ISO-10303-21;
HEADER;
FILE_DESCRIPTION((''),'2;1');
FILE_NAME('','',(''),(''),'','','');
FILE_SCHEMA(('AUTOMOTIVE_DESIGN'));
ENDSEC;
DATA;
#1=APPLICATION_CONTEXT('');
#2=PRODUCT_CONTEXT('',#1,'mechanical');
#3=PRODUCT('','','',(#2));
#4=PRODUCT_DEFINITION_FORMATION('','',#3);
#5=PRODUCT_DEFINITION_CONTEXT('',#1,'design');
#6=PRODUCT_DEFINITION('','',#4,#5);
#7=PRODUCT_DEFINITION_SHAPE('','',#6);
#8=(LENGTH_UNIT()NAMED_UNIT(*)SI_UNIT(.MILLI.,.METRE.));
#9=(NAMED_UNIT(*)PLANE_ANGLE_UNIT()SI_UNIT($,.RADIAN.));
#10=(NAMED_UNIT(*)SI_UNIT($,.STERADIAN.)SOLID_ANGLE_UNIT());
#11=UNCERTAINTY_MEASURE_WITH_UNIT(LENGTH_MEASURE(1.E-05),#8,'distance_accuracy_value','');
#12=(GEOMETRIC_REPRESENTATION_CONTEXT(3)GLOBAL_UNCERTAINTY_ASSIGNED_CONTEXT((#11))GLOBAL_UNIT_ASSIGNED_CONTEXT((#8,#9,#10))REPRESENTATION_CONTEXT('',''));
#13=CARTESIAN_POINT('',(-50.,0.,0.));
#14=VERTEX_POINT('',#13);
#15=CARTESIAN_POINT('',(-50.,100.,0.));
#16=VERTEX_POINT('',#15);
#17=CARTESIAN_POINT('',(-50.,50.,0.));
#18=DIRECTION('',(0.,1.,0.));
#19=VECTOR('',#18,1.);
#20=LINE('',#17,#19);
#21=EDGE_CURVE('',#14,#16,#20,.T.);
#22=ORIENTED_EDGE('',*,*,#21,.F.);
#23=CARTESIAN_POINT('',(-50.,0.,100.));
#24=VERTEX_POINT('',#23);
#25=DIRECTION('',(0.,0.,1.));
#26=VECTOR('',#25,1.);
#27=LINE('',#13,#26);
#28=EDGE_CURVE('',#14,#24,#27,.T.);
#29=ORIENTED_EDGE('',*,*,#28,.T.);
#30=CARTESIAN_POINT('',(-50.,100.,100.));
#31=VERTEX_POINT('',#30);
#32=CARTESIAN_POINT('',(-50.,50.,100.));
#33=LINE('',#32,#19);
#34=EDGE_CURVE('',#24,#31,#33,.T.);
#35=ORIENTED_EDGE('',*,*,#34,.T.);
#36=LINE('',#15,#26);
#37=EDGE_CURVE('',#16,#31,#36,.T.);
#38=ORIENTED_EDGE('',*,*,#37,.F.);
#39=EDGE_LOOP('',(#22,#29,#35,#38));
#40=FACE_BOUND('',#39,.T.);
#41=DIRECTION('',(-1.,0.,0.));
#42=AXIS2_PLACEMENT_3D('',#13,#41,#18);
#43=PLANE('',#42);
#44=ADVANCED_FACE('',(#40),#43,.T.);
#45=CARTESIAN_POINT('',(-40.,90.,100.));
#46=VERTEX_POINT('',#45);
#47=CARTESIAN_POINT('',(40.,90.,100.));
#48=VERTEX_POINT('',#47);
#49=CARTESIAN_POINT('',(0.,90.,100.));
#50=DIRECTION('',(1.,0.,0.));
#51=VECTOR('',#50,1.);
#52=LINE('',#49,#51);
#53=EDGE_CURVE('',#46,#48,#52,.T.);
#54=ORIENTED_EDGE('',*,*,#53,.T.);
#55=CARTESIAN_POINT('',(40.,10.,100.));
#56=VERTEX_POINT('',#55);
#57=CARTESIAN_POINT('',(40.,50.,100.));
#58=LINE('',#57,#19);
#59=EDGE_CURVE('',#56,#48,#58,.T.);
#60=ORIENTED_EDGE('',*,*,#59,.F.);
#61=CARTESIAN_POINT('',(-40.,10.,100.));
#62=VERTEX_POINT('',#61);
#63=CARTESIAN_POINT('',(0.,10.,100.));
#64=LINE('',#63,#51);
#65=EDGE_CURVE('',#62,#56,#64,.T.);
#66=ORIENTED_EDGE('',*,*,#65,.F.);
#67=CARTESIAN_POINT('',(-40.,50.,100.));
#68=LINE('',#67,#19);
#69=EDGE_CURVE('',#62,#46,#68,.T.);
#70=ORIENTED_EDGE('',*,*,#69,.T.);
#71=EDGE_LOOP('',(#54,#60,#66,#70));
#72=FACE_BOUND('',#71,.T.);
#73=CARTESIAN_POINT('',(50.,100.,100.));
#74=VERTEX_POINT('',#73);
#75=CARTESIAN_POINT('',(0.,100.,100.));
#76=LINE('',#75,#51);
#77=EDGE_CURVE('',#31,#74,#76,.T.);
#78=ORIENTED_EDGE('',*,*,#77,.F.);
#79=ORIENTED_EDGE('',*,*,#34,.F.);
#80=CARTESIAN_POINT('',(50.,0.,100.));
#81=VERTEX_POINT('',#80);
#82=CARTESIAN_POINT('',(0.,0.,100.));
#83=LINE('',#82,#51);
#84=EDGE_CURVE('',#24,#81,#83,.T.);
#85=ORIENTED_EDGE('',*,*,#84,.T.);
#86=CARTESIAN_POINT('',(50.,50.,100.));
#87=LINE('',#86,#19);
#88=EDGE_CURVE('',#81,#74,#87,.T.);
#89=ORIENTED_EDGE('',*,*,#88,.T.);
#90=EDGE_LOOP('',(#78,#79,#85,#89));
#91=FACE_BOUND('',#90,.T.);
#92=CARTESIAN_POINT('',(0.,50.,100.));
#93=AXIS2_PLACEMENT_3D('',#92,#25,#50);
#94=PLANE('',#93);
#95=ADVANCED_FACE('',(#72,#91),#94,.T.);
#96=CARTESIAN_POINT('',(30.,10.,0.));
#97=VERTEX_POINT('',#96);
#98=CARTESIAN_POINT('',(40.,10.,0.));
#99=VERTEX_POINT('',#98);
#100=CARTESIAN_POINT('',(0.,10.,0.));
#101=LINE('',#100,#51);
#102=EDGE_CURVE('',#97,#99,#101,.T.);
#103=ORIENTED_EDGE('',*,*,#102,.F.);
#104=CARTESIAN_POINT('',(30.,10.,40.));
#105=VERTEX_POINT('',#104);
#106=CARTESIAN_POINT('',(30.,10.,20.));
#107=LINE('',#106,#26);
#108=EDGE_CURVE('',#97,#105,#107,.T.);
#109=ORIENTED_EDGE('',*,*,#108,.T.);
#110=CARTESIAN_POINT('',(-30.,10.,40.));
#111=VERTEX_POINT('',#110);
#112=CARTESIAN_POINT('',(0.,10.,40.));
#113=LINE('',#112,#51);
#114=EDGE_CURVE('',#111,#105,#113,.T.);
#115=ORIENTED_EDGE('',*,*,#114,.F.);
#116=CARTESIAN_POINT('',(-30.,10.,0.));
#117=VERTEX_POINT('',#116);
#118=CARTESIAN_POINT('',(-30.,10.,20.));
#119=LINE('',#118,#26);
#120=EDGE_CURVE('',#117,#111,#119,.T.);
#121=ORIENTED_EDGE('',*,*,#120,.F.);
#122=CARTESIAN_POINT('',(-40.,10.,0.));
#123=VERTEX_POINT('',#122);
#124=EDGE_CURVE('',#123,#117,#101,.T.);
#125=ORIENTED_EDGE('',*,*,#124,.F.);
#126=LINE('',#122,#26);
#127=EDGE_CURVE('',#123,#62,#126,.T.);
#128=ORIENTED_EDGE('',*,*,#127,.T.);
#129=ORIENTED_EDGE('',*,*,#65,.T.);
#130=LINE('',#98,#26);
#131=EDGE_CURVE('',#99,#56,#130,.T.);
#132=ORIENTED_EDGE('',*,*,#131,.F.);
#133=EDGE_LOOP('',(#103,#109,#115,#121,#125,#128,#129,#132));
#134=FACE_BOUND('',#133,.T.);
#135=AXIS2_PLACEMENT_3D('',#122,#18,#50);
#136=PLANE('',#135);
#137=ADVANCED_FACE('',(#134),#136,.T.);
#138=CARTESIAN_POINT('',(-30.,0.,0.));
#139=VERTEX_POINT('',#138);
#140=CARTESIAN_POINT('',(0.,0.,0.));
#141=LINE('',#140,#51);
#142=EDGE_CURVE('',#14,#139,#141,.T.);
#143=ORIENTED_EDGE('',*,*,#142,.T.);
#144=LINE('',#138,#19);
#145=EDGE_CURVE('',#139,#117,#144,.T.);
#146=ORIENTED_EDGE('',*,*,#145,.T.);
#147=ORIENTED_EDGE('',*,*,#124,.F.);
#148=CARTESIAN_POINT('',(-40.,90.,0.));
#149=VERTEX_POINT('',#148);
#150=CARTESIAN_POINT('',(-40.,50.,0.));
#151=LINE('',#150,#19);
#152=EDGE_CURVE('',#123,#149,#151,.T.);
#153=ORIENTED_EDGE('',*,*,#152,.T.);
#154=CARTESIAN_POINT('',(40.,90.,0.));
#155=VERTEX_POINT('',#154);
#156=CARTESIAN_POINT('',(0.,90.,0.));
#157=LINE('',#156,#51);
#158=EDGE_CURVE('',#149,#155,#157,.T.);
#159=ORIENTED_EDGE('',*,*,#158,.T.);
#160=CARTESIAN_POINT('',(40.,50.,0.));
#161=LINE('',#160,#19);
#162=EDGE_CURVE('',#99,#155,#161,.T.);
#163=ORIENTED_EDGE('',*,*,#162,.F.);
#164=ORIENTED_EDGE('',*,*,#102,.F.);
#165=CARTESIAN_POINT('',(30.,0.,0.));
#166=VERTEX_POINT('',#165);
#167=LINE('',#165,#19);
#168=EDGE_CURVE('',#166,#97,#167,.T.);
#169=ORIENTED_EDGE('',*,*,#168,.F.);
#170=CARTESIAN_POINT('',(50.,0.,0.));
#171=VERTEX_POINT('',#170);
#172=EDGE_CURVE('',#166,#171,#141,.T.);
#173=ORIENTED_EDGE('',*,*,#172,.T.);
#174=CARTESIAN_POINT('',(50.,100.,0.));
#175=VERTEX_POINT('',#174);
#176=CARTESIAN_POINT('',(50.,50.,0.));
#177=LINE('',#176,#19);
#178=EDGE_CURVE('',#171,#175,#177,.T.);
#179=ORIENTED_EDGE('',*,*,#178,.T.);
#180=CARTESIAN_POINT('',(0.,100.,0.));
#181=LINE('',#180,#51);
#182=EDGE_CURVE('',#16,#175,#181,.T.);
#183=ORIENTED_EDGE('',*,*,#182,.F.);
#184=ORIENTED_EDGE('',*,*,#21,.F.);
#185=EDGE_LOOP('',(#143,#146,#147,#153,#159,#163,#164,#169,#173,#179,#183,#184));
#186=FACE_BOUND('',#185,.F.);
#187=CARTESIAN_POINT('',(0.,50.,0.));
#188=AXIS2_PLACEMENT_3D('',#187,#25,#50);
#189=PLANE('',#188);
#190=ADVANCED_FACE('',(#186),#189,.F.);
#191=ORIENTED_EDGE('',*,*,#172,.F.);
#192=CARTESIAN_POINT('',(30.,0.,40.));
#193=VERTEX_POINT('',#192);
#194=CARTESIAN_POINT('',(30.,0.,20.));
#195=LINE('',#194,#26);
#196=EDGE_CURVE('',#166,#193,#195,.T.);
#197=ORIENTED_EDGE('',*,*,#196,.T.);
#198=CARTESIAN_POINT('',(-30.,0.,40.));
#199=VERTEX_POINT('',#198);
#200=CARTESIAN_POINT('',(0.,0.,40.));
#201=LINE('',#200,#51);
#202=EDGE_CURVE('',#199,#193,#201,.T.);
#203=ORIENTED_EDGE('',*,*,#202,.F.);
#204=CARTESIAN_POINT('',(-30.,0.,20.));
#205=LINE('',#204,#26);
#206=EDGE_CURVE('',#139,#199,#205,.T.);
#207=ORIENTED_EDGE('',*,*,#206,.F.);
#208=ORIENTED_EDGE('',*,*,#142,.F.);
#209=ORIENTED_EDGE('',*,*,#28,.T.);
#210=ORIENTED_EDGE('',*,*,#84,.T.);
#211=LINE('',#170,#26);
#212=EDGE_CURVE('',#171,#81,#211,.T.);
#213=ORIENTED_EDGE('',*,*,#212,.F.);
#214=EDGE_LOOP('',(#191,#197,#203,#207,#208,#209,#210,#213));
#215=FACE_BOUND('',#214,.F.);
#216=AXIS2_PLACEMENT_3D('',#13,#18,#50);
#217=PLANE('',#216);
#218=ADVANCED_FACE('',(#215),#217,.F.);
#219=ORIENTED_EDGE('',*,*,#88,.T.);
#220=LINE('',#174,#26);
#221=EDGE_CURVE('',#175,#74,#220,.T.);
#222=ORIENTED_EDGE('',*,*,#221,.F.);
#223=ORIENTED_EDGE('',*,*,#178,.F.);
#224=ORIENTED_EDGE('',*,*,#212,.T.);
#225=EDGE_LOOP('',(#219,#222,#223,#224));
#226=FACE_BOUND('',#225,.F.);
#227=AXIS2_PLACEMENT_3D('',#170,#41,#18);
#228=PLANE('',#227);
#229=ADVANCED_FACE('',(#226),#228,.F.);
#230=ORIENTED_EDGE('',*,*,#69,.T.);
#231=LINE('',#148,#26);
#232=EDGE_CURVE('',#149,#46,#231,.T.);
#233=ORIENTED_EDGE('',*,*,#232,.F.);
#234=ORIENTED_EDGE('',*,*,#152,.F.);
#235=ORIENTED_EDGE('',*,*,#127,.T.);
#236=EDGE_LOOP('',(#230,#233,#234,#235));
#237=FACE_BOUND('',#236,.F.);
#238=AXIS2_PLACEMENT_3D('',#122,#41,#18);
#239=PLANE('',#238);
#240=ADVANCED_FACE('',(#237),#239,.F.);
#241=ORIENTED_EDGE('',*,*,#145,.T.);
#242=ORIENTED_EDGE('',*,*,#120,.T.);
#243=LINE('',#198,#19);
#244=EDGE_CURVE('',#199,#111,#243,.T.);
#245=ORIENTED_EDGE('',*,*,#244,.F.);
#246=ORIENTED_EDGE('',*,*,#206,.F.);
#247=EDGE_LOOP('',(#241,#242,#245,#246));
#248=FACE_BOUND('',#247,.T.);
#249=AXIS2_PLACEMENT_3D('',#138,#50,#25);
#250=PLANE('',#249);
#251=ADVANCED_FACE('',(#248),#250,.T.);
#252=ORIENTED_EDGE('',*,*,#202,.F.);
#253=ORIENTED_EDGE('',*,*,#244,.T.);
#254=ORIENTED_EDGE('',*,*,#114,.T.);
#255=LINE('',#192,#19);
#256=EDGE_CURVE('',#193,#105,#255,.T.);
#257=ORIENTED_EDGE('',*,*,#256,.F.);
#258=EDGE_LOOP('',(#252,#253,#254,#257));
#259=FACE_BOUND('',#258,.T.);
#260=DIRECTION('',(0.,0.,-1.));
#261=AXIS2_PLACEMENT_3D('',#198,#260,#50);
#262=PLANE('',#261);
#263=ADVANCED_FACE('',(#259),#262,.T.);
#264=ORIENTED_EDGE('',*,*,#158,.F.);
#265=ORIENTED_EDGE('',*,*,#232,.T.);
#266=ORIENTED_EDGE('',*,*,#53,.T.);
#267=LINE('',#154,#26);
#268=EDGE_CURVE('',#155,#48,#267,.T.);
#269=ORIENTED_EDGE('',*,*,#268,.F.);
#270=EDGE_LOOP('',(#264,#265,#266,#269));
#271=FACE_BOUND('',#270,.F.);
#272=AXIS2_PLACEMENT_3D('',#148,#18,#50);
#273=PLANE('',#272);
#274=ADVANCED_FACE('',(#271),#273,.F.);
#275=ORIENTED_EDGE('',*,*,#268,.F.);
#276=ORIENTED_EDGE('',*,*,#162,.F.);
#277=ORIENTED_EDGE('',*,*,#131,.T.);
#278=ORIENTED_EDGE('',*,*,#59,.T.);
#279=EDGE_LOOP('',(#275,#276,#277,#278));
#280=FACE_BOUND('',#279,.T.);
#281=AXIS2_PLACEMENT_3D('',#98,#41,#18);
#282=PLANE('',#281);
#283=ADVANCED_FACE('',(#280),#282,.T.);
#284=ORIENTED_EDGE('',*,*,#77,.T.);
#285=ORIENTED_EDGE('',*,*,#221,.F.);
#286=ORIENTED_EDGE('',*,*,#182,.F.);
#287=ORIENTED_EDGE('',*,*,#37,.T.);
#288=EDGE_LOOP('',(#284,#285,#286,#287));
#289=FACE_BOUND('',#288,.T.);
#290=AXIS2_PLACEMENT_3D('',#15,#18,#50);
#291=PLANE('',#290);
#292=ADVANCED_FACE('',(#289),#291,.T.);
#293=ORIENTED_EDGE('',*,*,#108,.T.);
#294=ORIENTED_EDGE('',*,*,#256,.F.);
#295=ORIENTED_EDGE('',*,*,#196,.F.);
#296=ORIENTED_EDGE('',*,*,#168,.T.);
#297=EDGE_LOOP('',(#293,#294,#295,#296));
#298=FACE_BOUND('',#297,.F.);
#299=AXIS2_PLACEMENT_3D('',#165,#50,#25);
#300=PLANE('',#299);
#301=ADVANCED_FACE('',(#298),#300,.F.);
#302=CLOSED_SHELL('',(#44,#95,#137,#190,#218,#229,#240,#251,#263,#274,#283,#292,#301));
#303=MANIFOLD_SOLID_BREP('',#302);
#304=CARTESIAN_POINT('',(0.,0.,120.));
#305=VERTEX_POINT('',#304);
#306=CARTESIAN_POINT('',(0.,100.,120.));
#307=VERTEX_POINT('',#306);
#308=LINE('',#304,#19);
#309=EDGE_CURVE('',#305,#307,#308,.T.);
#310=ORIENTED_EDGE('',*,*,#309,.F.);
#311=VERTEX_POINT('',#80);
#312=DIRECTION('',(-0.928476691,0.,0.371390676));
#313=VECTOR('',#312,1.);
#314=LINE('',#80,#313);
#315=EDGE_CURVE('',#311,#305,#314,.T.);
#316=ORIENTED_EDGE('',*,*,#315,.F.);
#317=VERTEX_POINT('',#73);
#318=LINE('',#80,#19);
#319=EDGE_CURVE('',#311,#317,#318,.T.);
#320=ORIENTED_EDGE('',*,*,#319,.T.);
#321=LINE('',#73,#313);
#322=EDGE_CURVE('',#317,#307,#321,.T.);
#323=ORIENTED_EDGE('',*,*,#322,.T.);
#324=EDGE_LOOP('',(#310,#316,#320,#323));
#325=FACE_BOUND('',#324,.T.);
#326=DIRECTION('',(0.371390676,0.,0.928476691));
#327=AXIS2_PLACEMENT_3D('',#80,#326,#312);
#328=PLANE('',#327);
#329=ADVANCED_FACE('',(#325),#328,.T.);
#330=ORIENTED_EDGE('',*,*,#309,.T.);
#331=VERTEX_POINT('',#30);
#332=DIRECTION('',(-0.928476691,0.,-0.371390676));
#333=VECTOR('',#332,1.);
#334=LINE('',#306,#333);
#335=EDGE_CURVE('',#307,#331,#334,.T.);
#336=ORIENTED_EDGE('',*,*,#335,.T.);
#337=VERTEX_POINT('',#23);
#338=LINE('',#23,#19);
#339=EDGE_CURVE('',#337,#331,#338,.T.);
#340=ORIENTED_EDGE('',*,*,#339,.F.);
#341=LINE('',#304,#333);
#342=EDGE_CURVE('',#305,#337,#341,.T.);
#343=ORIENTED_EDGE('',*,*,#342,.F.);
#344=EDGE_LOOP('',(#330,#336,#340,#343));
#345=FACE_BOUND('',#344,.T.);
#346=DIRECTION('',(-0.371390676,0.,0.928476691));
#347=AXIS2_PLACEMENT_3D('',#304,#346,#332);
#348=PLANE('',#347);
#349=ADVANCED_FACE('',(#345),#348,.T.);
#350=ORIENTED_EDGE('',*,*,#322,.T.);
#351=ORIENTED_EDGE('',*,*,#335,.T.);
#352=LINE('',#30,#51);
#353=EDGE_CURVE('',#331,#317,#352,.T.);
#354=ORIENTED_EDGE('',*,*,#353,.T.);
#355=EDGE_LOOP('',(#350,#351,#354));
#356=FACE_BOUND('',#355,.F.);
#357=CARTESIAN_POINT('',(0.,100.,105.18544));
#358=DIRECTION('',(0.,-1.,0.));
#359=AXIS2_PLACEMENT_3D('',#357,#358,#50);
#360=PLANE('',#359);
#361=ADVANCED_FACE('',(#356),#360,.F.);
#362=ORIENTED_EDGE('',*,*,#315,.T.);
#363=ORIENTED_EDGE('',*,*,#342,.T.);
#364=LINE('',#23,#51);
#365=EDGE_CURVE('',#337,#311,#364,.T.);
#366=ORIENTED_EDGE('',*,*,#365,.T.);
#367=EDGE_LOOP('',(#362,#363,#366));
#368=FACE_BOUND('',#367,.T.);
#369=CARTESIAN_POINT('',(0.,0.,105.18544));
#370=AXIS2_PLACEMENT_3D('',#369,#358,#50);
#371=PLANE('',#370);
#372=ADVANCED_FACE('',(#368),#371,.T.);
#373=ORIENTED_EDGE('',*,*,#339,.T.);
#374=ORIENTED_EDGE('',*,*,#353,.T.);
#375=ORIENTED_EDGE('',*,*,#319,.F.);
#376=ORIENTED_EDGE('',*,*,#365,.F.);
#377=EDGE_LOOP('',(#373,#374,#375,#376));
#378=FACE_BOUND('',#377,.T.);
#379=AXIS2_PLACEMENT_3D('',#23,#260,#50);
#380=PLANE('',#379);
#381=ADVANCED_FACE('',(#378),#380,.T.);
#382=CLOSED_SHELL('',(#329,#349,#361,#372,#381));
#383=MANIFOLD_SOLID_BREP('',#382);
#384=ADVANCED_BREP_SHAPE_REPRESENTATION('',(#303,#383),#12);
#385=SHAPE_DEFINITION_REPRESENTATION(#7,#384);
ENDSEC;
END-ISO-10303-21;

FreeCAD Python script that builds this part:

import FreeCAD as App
import Part
import Sketcher
from FreeCAD import Vector


def add_polygon(sketch, points):
    """Adds a closed chain of lines whose ends are joined by coincident constraints."""
    first, n = sketch.GeometryCount, len(points)
    for a, b in zip(points, points[1:] + points[:1]):
        sketch.addGeometry(Part.LineSegment(App.Vector(*a, 0), App.Vector(*b, 0)), False)
    for i in range(n):
        sketch.addConstraint(Sketcher.Constraint("Coincident", first + i, 2, first + (i + 1) % n, 1))

doc = App.newDocument("Part")
body = doc.addObject("PartDesign::Body", "Body")

# Sketch on XY plane
sketch1 = doc.addObject("Sketcher::SketchObject", "Sketch")
body.addObject(sketch1)
sketch1.AttachmentSupport = (doc.XY_Plane, [""])
sketch1.MapMode = "FlatFace"
add_polygon(sketch1, [(-50, 100), (-50, 0), (50, 0), (50, 100)])  # lines 0-3
add_polygon(sketch1, [(40, 10), (-40, 10), (-40, 90), (40, 90)])  # lines 4-7
sketch1.addConstraint([
    Sketcher.Constraint("Vertical", 0),
    Sketcher.Constraint("Horizontal", 1),
    Sketcher.Constraint("Vertical", 2),
    Sketcher.Constraint("Horizontal", 3),
    Sketcher.Constraint("Horizontal", 4),
    Sketcher.Constraint("Vertical", 5),
    Sketcher.Constraint("Horizontal", 6),
    Sketcher.Constraint("Vertical", 7),
    Sketcher.Constraint("Symmetric", 0, 2, 1, 2, -1, 1),
    Sketcher.Constraint("Equal", 3, 0),
    Sketcher.Constraint("Equal", 6, 5),
    Sketcher.Constraint("DistanceX", 1, 1, 1, 2, 100.0),
    Sketcher.Constraint("DistanceX", 4, 2, 4, 1, 80.0),
    Sketcher.Constraint("DistanceX", 4, 2, -1, 1, 40.0),
    Sketcher.Constraint("DistanceY", -1, 1, 4, 2, 10.0),
])
pad1 = doc.addObject("PartDesign::Pad", "Pad")
body.addObject(pad1)
pad1.Profile = sketch1
pad1.Length = 100

# Sketch on XZ plane
sketch2 = doc.addObject("Sketcher::SketchObject", "Sketch001")
body.addObject(sketch2)
sketch2.AttachmentSupport = (doc.XZ_Plane, [""])
sketch2.MapMode = "FlatFace"
add_polygon(sketch2, [(-30, 40), (-30, 0), (30, 0), (30, 40)])  # lines 0-3
sketch2.addConstraint([
    Sketcher.Constraint("Vertical", 0),
    Sketcher.Constraint("Horizontal", 1),
    Sketcher.Constraint("Vertical", 2),
    Sketcher.Constraint("Horizontal", 3),
    Sketcher.Constraint("Symmetric", 0, 2, 1, 2, -1, 1),
    Sketcher.Constraint("DistanceX", 1, 1, 1, 2, 60.0),
    Sketcher.Constraint("DistanceY", 0, 2, 0, 1, 40.0),
])
pocket1 = doc.addObject("PartDesign::Pocket", "Pocket")
body.addObject(pocket1)
pocket1.Profile = sketch2
pocket1.Length = 10
body2 = doc.addObject("PartDesign::Body", "Body001")

# Sketch on XZ plane
sketch3 = doc.addObject("Sketcher::SketchObject", "Sketch002")
body2.addObject(sketch3)
sketch3.AttachmentSupport = (doc.getObject("XZ_Plane001"), [""])
sketch3.MapMode = "FlatFace"
add_polygon(sketch3, [(0, 120), (-50, 100), (50, 100)])  # lines 0-2
sketch3.addConstraint([
    Sketcher.Constraint("Horizontal", 1),
    Sketcher.Constraint("PointOnObject", 2, 2, -2),
    Sketcher.Constraint("Equal", 0, 2),
    Sketcher.Constraint("DistanceX", 1, 1, 1, 2, 100.0),
    Sketcher.Constraint("DistanceY", -1, 1, 0, 2, 100.0),
    Sketcher.Constraint("DistanceY", -1, 1, 2, 2, 120.0),
])
pad2 = doc.addObject("PartDesign::Pad", "Pad001")
body2.addObject(pad2)
pad2.Profile = sketch3
pad2.Length = 100
pad2.Reversed = True

doc.recompute()
